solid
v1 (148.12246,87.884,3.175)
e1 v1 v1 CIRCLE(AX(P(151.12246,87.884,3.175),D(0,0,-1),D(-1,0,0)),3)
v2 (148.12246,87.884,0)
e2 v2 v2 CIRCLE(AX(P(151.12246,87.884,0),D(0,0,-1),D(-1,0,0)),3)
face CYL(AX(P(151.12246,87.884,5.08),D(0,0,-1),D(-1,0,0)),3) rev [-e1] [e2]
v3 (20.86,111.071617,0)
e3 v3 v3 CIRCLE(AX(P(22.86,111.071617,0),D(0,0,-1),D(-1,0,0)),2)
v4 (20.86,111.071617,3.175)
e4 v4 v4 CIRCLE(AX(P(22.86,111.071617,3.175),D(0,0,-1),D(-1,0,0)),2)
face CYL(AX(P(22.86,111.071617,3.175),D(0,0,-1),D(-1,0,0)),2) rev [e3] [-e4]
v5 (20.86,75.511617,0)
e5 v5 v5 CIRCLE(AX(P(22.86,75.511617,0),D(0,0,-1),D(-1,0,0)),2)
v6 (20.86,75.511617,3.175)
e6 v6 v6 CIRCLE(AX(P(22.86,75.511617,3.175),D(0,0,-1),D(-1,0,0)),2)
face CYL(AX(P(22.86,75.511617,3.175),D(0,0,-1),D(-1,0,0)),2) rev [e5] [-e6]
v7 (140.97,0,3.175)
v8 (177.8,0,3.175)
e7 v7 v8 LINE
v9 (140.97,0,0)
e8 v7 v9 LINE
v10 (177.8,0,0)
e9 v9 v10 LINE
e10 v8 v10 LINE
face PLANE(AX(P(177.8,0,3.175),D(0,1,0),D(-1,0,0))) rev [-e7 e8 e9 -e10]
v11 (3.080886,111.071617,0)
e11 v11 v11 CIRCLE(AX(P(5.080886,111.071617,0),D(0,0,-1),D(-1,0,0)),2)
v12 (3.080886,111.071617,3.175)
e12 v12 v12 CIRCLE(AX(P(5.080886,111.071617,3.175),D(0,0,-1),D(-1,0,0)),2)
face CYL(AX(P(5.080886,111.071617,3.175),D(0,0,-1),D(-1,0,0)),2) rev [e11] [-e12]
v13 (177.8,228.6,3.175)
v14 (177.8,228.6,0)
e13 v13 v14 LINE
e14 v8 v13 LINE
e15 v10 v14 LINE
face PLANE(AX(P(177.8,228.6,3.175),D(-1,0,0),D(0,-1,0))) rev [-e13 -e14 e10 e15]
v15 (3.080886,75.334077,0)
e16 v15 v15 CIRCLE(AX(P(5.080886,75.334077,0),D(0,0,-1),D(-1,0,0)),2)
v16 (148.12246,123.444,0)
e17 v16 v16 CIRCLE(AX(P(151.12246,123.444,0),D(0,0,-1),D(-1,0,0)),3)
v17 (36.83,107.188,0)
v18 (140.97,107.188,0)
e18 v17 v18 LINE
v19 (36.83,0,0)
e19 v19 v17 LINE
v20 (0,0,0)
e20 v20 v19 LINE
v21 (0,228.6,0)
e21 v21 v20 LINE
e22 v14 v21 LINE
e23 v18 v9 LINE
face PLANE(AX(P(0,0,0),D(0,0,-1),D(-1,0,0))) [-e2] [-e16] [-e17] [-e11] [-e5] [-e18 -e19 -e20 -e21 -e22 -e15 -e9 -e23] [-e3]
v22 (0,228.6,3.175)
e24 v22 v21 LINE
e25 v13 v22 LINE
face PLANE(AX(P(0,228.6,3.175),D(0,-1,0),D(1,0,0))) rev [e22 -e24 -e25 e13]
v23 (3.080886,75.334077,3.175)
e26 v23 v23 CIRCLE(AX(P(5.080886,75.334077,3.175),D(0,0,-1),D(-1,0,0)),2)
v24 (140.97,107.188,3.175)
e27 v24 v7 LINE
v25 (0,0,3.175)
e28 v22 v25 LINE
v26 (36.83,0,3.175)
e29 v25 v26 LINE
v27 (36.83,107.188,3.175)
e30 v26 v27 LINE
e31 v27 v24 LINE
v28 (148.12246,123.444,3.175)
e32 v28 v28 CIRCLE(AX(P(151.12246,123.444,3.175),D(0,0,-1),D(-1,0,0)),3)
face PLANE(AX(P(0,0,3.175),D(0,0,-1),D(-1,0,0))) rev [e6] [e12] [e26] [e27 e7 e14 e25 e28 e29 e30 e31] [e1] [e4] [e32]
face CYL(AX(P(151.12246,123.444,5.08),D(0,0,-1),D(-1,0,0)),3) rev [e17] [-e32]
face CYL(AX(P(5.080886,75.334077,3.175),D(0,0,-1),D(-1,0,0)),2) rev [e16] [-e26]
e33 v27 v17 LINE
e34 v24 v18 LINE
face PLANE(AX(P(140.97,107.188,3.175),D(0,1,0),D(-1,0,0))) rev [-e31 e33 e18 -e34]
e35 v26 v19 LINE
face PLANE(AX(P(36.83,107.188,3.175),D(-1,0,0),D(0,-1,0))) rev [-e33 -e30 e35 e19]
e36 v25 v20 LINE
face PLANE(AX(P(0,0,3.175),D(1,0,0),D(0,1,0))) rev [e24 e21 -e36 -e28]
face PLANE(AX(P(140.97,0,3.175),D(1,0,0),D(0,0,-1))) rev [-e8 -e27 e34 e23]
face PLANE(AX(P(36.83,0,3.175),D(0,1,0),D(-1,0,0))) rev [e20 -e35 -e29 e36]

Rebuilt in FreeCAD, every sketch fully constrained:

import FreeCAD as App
import Part
import Sketcher
from FreeCAD import Vector
Q = App.Units.Quantity

doc = App.newDocument("Part")
body = doc.addObject("PartDesign::Body", "Body")

# Sketch on XY plane
sketch1 = body.newObject("Sketcher::SketchObject", "Sketch")
sketch1.AttachmentSupport = (doc.getObject("XY_Plane"), [""])
sketch1.MapMode = "FlatFace"
sketch1.addGeometry([
    Part.LineSegment(Vector(0, 229, 0), Vector(0, 0, 0)),  # 0
    Part.LineSegment(Vector(0, 0, 0), Vector(37, 0, 0)),  # 1
    Part.LineSegment(Vector(37, 0, 0), Vector(37, 107, 0)),  # 2
    Part.LineSegment(Vector(37, 107, 0), Vector(141, 107, 0)),  # 3
    Part.LineSegment(Vector(141, 107, 0), Vector(141, 0, 0)),  # 4
    Part.LineSegment(Vector(141, 0, 0), Vector(178, 0, 0)),  # 5
    Part.LineSegment(Vector(178, 0, 0), Vector(178, 229, 0)),  # 6
    Part.LineSegment(Vector(178, 229, 0), Vector(0, 229, 0)),  # 7
], False)
sketch1.addConstraint([
    Sketcher.Constraint("Coincident", 0, 2, 1, 1),
    Sketcher.Constraint("Coincident", 1, 2, 2, 1),
    Sketcher.Constraint("Coincident", 2, 2, 3, 1),
    Sketcher.Constraint("Coincident", 3, 2, 4, 1),
    Sketcher.Constraint("Coincident", 4, 2, 5, 1),
    Sketcher.Constraint("Coincident", 5, 2, 6, 1),
    Sketcher.Constraint("Coincident", 6, 2, 7, 1),
    Sketcher.Constraint("Coincident", 7, 2, 0, 1),
    Sketcher.Constraint("Vertical", 0),
    Sketcher.Constraint("Horizontal", 1),
    Sketcher.Constraint("Vertical", 2),
    Sketcher.Constraint("Horizontal", 3),
    Sketcher.Constraint("Vertical", 4),
    Sketcher.Constraint("Horizontal", 5),
    Sketcher.Constraint("Vertical", 6),
    Sketcher.Constraint("Horizontal", 7),
    Sketcher.Constraint("Coincident", 0, 2, -1, 1),
    Sketcher.Constraint("PointOnObject", 4, 2, -1),
    Sketcher.Constraint("Equal", 1, 5),
    Sketcher.Constraint("DistanceX", 7, 2, 7, 1, Q("7 in")),
    Sketcher.Constraint("DistanceY", 0, 2, 0, 1, Q("9 in")),
    Sketcher.Constraint("DistanceX", 3, 1, 3, 2, Q("4.1 in")),
    Sketcher.Constraint("DistanceY", 2, 1, 2, 2, Q("4.22 in")),
])
pad1 = body.newObject("PartDesign::Pad", "Pad")
pad1.Profile = sketch1
pad1.Length = Q("0.125 in")

# Sketch on XY plane
sketch2 = body.newObject("Sketcher::SketchObject", "Sketch001")
sketch2.AttachmentSupport = (doc.getObject("XY_Plane"), [""])
sketch2.MapMode = "FlatFace"
sketch2.addGeometry([
    Part.Circle(Vector(22.9, 111.1, 0), Vector(0, 0, 1), 2),
    Part.Circle(Vector(5.1, 111.1, 0), Vector(0, 0, 1), 2),
    Part.Circle(Vector(22.9, 75.5, 0), Vector(0, 0, 1), 2),
    Part.Circle(Vector(5.1, 75.3, 0), Vector(0, 0, 1), 2),
], False)
sketch2.addConstraint([
    Sketcher.Constraint("Equal", 0, 1),
    Sketcher.Constraint("Equal", 1, 2),
    Sketcher.Constraint("Equal", 2, 3),
    Sketcher.Constraint("Horizontal", 0, 3, 1, 3),
    Sketcher.Constraint("Vertical", 0, 3, 2, 3),
    Sketcher.Constraint("Vertical", 1, 3, 3, 3),
    Sketcher.Constraint("DistanceX", -1, 1, 0, 3, Q("0.9 in")),
    Sketcher.Constraint("DistanceY", 2, 3, 0, 3, Q("1.4 in")),
    Sketcher.Constraint("Diameter", 0, Q("4 mm")),
    Sketcher.Constraint("DistanceY", 3, 3, 2, 3, Q("0.17754 mm")),
    Sketcher.Constraint("DistanceY", -1, 1, 0, 3, Q("111.071617 mm")),
    Sketcher.Constraint("DistanceX", -1, 1, 1, 3, Q("5.080886 mm")),
])
pocket1 = body.newObject("PartDesign::Pocket", "Pocket")
pocket1.Profile = sketch2
pocket1.Length = Q("0.125 in")
pocket1.Reversed = True

# Sketch on XY plane
sketch3 = body.newObject("Sketcher::SketchObject", "Sketch002")
sketch3.AttachmentSupport = (doc.getObject("XY_Plane"), [""])
sketch3.MapMode = "FlatFace"
sketch3.addGeometry([
    Part.Circle(Vector(151.1, 123.4, 0), Vector(0, 0, 1), 3),
    Part.Circle(Vector(151.1, 87.9, 0), Vector(0, 0, 1), 3),
], False)
sketch3.addConstraint([
    Sketcher.Constraint("Equal", 0, 1),
    Sketcher.Constraint("Vertical", 0, 3, 1, 3),
    Sketcher.Constraint("DistanceY", 1, 3, 0, 3, Q("1.4 in")),
    Sketcher.Constraint("Diameter", 0, Q("6 mm")),
    Sketcher.Constraint("DistanceY", -1, 1, 0, 3, Q("4.86 in")),
    Sketcher.Constraint("DistanceX", -1, 1, 0, 3, Q("151.12246 mm")),
])
pocket2 = body.newObject("PartDesign::Pocket", "Pocket001")
pocket2.Profile = sketch3
pocket2.Length = Q("0.2 in")
pocket2.Reversed = True

doc.recompute()
